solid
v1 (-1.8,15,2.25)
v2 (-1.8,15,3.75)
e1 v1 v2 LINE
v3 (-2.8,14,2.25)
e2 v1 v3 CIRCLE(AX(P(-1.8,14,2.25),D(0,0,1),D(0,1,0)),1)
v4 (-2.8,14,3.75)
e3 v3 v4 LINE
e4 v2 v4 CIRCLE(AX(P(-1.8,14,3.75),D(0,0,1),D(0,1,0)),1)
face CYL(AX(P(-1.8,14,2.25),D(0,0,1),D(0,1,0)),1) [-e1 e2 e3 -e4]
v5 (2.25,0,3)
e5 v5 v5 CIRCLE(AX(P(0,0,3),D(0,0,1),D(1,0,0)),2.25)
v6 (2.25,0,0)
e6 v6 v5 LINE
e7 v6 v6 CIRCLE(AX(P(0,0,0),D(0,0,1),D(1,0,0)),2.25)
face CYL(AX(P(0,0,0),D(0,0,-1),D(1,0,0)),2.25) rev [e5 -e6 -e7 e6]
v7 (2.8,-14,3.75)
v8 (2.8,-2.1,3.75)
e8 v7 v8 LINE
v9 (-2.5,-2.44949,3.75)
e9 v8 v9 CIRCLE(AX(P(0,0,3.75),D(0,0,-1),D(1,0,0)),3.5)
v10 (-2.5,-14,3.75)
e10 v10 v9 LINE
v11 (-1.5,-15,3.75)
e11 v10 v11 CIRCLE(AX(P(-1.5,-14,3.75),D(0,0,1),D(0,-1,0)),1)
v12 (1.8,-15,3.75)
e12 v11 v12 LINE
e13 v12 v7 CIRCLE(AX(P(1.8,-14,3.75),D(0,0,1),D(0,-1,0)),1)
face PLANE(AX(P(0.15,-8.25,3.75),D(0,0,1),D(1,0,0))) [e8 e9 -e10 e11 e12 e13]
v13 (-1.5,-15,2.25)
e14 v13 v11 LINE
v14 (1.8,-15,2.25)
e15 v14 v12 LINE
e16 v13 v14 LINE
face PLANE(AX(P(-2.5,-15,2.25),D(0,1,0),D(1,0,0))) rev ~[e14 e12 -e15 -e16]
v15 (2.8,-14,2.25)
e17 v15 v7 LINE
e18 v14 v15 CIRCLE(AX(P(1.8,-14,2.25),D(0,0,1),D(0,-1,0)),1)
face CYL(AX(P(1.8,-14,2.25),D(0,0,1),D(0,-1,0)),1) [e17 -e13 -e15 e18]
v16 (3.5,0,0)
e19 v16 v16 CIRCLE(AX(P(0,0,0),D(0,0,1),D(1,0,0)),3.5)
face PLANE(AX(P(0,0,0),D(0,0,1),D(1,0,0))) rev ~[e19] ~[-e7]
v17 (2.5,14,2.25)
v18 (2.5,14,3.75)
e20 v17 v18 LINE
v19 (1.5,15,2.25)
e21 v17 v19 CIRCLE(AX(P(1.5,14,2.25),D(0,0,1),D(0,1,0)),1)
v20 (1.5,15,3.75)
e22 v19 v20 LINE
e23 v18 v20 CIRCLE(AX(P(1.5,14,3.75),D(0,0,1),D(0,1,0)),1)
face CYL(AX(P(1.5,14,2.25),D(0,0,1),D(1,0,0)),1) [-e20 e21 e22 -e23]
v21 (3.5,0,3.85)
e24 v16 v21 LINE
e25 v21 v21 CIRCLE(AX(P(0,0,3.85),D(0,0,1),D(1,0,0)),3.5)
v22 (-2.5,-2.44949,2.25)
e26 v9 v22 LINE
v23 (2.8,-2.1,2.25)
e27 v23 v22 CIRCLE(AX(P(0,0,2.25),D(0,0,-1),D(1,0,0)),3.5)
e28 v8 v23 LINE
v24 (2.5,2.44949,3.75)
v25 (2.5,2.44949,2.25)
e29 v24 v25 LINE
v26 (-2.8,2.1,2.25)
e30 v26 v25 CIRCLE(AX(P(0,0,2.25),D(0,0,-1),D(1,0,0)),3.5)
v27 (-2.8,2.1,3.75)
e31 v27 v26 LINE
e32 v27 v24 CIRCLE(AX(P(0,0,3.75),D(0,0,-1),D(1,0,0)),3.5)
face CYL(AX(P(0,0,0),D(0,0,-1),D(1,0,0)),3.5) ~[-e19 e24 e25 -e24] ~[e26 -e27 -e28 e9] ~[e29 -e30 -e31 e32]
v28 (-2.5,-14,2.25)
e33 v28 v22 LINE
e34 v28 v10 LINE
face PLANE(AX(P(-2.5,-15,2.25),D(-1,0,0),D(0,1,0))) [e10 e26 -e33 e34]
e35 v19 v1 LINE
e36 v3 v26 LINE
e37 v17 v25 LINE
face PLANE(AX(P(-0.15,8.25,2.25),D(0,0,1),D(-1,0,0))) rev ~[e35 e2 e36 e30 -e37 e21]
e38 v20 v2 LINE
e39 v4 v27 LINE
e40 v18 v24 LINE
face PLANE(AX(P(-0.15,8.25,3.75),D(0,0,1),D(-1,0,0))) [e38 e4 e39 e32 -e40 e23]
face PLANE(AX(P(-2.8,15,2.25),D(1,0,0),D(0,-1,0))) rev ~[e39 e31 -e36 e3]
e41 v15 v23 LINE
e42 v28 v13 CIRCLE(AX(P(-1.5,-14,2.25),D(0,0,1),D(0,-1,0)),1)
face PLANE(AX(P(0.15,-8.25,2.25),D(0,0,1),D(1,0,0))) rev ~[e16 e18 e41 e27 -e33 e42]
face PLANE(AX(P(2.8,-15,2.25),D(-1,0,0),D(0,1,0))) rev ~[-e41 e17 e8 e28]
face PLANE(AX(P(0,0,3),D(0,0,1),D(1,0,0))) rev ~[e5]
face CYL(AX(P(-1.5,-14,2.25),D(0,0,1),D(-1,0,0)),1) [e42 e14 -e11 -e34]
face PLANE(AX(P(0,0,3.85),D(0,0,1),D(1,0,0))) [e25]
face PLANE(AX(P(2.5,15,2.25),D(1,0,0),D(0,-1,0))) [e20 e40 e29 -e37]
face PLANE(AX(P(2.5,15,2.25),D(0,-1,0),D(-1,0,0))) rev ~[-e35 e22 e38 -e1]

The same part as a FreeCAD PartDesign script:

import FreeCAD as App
import Part
import Sketcher

V = App.Vector
Q = App.Units.Quantity


def edges_at(feature, points):
    """Names of the edges that pass closest to the given points."""
    edges = feature.Shape.Edges
    near = lambda p: min(range(len(edges)), key=lambda i: edges[i].distToShape(Part.Vertex(*p))[0])
    return sorted({f"Edge{near(p) + 1}" for p in points})


def add_polygon(sketch, points):
    """Adds a closed chain of lines whose ends are joined by coincident constraints."""
    first, n = sketch.GeometryCount, len(points)
    for a, b in zip(points, points[1:] + points[:1]):
        sketch.addGeometry(Part.LineSegment(App.Vector(*a, 0), App.Vector(*b, 0)), False)
    for i in range(n):
        sketch.addConstraint(Sketcher.Constraint("Coincident", first + i, 2, first + (i + 1) % n, 1))

doc = App.newDocument("Part")
body = doc.addObject("PartDesign::Body", "Body")

sketch1 = doc.addObject("Sketcher::SketchObject", "Sketch")
body.addObject(sketch1)
sketch1.AttachmentSupport = (doc.XY_Plane, [""])
sketch1.MapMode = "FlatFace"
sketch1.addGeometry(Part.Circle(V(0, 0, 0), V(0, 0, 1), 2.2), False)
sketch1.addConstraint([
    Sketcher.Constraint("Coincident", 0, 3, -1, 1),
    Sketcher.Constraint("Diameter", 0, Q("4.5 mm")),
])
pad1 = doc.addObject("PartDesign::Pad", "Pad")
body.addObject(pad1)
pad1.Profile = sketch1
pad1.Length = 3
body2 = doc.addObject("PartDesign::Body", "Body001")

sketch2 = doc.addObject("Sketcher::SketchObject", "Sketch001")
body2.addObject(sketch2)
sketch2.AttachmentSupport = (doc.getObject("XY_Plane001"), [""])
sketch2.MapMode = "FlatFace"
sketch2.AttachmentOffset = App.Placement(V(0, 0, 2.25), App.Rotation())
add_polygon(sketch2, [(-2, -2), (-2, -15), (3, -15), (3, -2)])
sketch2.addConstraint([
    Sketcher.Constraint("Vertical", 0),
    Sketcher.Constraint("Horizontal", 1),
    Sketcher.Constraint("Vertical", 2),
    Sketcher.Constraint("Horizontal", 3),
    Sketcher.Constraint("DistanceX", 1, 1, 1, 2, Q("5.3 mm")),
    Sketcher.Constraint("DistanceY", 0, 2, 0, 1, Q("13.5 mm")),
    Sketcher.Constraint("DistanceY", 0, 2, -1, 1, Q("15 mm")),
    Sketcher.Constraint("DistanceX", 0, 2, -1, 1, Q("2.5 mm")),
])
pad2 = doc.addObject("PartDesign::Pad", "Pad001")
body2.addObject(pad2)
pad2.Profile = sketch2
pad2.Length = 1.5
doc.recompute()

fillet = doc.addObject("PartDesign::Fillet", "Fillet")
body2.addObject(fillet)
fillet.Base = (pad2, edges_at(pad2, [(-2.5, -15, 3), (2.8, -15, 3)]))
fillet.Radius = 1
body3 = doc.addObject("PartDesign::Body", "Body002")
doc.recompute()

body2.Placement = App.Placement(V(0, 0, 0), App.Rotation(V(0, 0, 1), 180))
boolean = doc.addObject("PartDesign::Boolean", "Boolean")
body3.addObject(boolean)
boolean.Type = "Fuse"
boolean.addObjects([body2])
body4 = doc.addObject("PartDesign::Body", "Body003")

sketch3 = doc.addObject("Sketcher::SketchObject", "Sketch002")
body4.addObject(sketch3)
sketch3.AttachmentSupport = (doc.getObject("XY_Plane003"), [""])
sketch3.MapMode = "FlatFace"
sketch3.AttachmentOffset = App.Placement(V(0, 0, 2.25), App.Rotation())
add_polygon(sketch3, [(-2, -2), (-2, -15), (3, -15), (3, -2)])
sketch3.addConstraint([
    Sketcher.Constraint("Vertical", 0),
    Sketcher.Constraint("Horizontal", 1),
    Sketcher.Constraint("Vertical", 2),
    Sketcher.Constraint("Horizontal", 3),
    Sketcher.Constraint("DistanceX", 1, 1, 1, 2, Q("5.3 mm")),
    Sketcher.Constraint("DistanceY", 0, 2, 0, 1, Q("13.5 mm")),
    Sketcher.Constraint("DistanceY", 0, 2, -1, 1, Q("15 mm")),
    Sketcher.Constraint("DistanceX", 0, 2, -1, 1, Q("2.5 mm")),
])
pad3 = doc.addObject("PartDesign::Pad", "Pad002")
body4.addObject(pad3)
pad3.Profile = sketch3
pad3.Length = 1.5
doc.recompute()

fillet2 = doc.addObject("PartDesign::Fillet", "Fillet001")
body4.addObject(fillet2)
fillet2.Base = (pad3, edges_at(pad3, [(-2.5, -15, 3), (2.8, -15, 3)]))
fillet2.Radius = 1
body5 = doc.addObject("PartDesign::Body", "Body004")

sketch4 = doc.addObject("Sketcher::SketchObject", "Sketch003")
body5.addObject(sketch4)
sketch4.AttachmentSupport = (doc.getObject("XY_Plane004"), [""])
sketch4.MapMode = "FlatFace"
sketch4.addGeometry(Part.Circle(V(0, 0, 0), V(0, 0, 1), 3.5), False)
sketch4.addConstraint([
    Sketcher.Constraint("Coincident", 0, 3, -1, 1),
    Sketcher.Constraint("Diameter", 0, Q("7 mm")),
])
pad4 = doc.addObject("PartDesign::Pad", "Pad003")
body5.addObject(pad4)
pad4.Profile = sketch4
pad4.Length = 3.85
doc.recompute()

boolean2 = doc.addObject("PartDesign::Boolean", "Boolean001")
body5.addObject(boolean2)
boolean2.Type = "Fuse"
boolean2.addObjects([body3])
doc.recompute()

boolean3 = doc.addObject("PartDesign::Boolean", "Boolean002")
body5.addObject(boolean3)
boolean3.Type = "Fuse"
boolean3.addObjects([body4])
doc.recompute()

boolean4 = doc.addObject("PartDesign::Boolean", "Boolean003")
body5.addObject(boolean4)
boolean4.Type = "Cut"
boolean4.addObjects([body])

doc.recompute()
